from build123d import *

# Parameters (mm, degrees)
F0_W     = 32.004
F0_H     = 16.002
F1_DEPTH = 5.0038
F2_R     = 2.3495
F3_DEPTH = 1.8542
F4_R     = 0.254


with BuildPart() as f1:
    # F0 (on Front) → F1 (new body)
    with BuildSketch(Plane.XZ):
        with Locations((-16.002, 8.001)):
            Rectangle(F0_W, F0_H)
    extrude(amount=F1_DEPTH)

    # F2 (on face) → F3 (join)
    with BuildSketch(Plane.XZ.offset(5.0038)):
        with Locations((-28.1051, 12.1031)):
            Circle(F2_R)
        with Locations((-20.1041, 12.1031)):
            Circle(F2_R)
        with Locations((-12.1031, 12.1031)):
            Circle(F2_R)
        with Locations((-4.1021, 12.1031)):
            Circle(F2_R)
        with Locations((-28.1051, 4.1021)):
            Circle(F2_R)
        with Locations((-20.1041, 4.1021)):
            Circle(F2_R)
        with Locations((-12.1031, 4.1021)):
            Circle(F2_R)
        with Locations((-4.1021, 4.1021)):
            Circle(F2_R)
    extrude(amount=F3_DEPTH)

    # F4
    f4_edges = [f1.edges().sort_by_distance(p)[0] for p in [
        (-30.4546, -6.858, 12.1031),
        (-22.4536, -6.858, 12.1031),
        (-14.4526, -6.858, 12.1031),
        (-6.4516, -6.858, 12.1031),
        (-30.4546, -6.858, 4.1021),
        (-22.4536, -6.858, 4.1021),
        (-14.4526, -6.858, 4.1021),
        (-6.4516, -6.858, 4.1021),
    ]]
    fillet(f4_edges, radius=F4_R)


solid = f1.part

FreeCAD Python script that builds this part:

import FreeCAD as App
import Part
import Sketcher
from FreeCAD import Vector
Q = App.Units.Quantity


def edges_at(feature, points):
    """Names of the edges that pass closest to the given points."""
    edges = feature.Shape.Edges
    near = lambda p: min(range(len(edges)), key=lambda i: edges[i].distToShape(Part.Vertex(*p))[0])
    return sorted({f"Edge{near(p) + 1}" for p in points})


def add_polygon(sketch, points):
    """Adds a closed chain of lines whose ends are joined by coincident constraints."""
    first, n = sketch.GeometryCount, len(points)
    for a, b in zip(points, points[1:] + points[:1]):
        sketch.addGeometry(Part.LineSegment(App.Vector(*a, 0), App.Vector(*b, 0)), False)
    for i in range(n):
        sketch.addConstraint(Sketcher.Constraint("Coincident", first + i, 2, first + (i + 1) % n, 1))

doc = App.newDocument("Part")
body = doc.addObject("PartDesign::Body", "Body")

# Sketch on XZ plane
sketch1 = body.newObject("Sketcher::SketchObject", "Sketch")
sketch1.AttachmentSupport = (doc.getObject("XZ_Plane"), [""])
sketch1.MapMode = "FlatFace"
add_polygon(sketch1, [(-32.004, 16.002), (-32.004, 0), (0, 0), (0, 16.002)])  # lines 0-3
sketch1.addConstraint(Sketcher.Constraint("Vertical", 0))
sketch1.addConstraint(Sketcher.Constraint("Horizontal", 1))
sketch1.addConstraint(Sketcher.Constraint("Vertical", 2))
sketch1.addConstraint(Sketcher.Constraint("Horizontal", 3))
sketch1.addConstraint(Sketcher.Constraint("Coincident", 1, 2, -1, 1))
sketch1.addConstraint(Sketcher.Constraint("DistanceX", 1, 1, 1, 2, Q("1.26 in")))
sketch1.addConstraint(Sketcher.Constraint("DistanceY", 0, 2, 0, 1, Q("0.63 in")))
pad1 = body.newObject("PartDesign::Pad", "Pad")
pad1.Profile = sketch1
pad1.Length = Q("0.197 in")

# Sketch on XZ plane
sketch2 = body.newObject("Sketcher::SketchObject", "Sketch001")
sketch2.AttachmentSupport = (doc.getObject("XZ_Plane"), [""])
sketch2.MapMode = "FlatFace"
sketch2.AttachmentOffset = App.Placement(Vector(0, 0, 0.197 * 25.4), App.Rotation())
sketch2.addGeometry(Part.Circle(Vector(-28.1051, 12.1031, 0), Vector(0, 0, 1), 2.3495), False)
sketch2.addGeometry(Part.Circle(Vector(-20.1041, 12.1031, 0), Vector(0, 0, 1), 2.3495), False)
sketch2.addGeometry(Part.Circle(Vector(-12.1031, 12.1031, 0), Vector(0, 0, 1), 2.3495), False)
sketch2.addGeometry(Part.Circle(Vector(-4.1021, 12.1031, 0), Vector(0, 0, 1), 2.3495), False)
sketch2.addGeometry(Part.Circle(Vector(-28.1051, 4.1021, 0), Vector(0, 0, 1), 2.3495), False)
sketch2.addGeometry(Part.Circle(Vector(-20.1041, 4.1021, 0), Vector(0, 0, 1), 2.3495), False)
sketch2.addGeometry(Part.Circle(Vector(-12.1031, 4.1021, 0), Vector(0, 0, 1), 2.3495), False)
sketch2.addGeometry(Part.Circle(Vector(-4.1021, 4.1021, 0), Vector(0, 0, 1), 2.3495), False)
sketch2.addConstraint(Sketcher.Constraint("Equal", 0, 1))
sketch2.addConstraint(Sketcher.Constraint("Equal", 1, 2))
sketch2.addConstraint(Sketcher.Constraint("Equal", 2, 3))
sketch2.addConstraint(Sketcher.Constraint("Equal", 3, 4))
sketch2.addConstraint(Sketcher.Constraint("Equal", 4, 5))
sketch2.addConstraint(Sketcher.Constraint("Equal", 5, 6))
sketch2.addConstraint(Sketcher.Constraint("Equal", 6, 7))
sketch2.addConstraint(Sketcher.Constraint("Horizontal", 0, 3, 1, 3))
sketch2.addConstraint(Sketcher.Constraint("Horizontal", 1, 3, 2, 3))
sketch2.addConstraint(Sketcher.Constraint("Horizontal", 2, 3, 3, 3))
sketch2.addConstraint(Sketcher.Constraint("Horizontal", 4, 3, 5, 3))
sketch2.addConstraint(Sketcher.Constraint("Horizontal", 5, 3, 6, 3))
sketch2.addConstraint(Sketcher.Constraint("Horizontal", 6, 3, 7, 3))
sketch2.addConstraint(Sketcher.Constraint("Vertical", 0, 3, 4, 3))
sketch2.addConstraint(Sketcher.Constraint("Vertical", 1, 3, 5, 3))
sketch2.addConstraint(Sketcher.Constraint("Vertical", 2, 3, 6, 3))
sketch2.addConstraint(Sketcher.Constraint("Vertical", 3, 3, 7, 3))
sketch2.addConstraint(Sketcher.Constraint("Diameter", 0, Q("0.185 in")))
sketch2.addConstraint(Sketcher.Constraint("DistanceX", 0, 3, 2, 3, Q("0.63 in")))
sketch2.addConstraint(Sketcher.Constraint("DistanceX", 1, 3, 3, 3, Q("0.63 in")))
sketch2.addConstraint(Sketcher.Constraint("DistanceX", 0, 3, 1, 3, Q("0.315 in")))
sketch2.addConstraint(Sketcher.Constraint("DistanceY", 4, 3, 0, 3, Q("0.315 in")))
sketch2.addConstraint(Sketcher.Constraint("DistanceX", 0, 3, -1, 1, Q("1.1065 in")))
sketch2.addConstraint(Sketcher.Constraint("DistanceY", -1, 1, 0, 3, Q("0.4765 in")))
pad2 = body.newObject("PartDesign::Pad", "Pad001")
pad2.Profile = sketch2
pad2.Length = Q("0.073 in")
doc.recompute()

fillet = body.newObject("PartDesign::Fillet", "Fillet")
fillet.Base = (pad2, edges_at(pad2, [
    (-30.455, -6.858, 12.103),
    (-22.454, -6.858, 12.103),
    (-14.453, -6.858, 12.103),
    (-6.452, -6.858, 12.103),
    (-30.455, -6.858, 4.102),
    (-22.454, -6.858, 4.102),
    (-14.453, -6.858, 4.102),
    (-6.452, -6.858, 4.102),
]))
fillet.Radius = Q("0.01 in")

doc.recompute()
